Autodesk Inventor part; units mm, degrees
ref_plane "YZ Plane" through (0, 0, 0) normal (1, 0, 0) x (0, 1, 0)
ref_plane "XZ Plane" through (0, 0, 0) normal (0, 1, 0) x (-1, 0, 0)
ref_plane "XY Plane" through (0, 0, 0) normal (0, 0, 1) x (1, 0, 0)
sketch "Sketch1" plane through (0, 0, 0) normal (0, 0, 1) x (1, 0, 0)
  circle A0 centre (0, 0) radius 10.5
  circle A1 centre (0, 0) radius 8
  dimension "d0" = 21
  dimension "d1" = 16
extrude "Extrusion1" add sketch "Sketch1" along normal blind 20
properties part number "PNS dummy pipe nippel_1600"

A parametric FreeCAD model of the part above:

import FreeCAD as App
import Part
import Sketcher

V = App.Vector
Q = App.Units.Quantity

doc = App.newDocument("Part")
params = doc.addObject("Spreadsheet::Sheet", "Params")
for row, (alias, value) in enumerate([
    ("sketch1_diameter", "21 mm"),
    ("sketch1_diameter2", "16 mm"),
    ("pad1_length", "20 mm"),
], start=1):
    params.set(f"A{row}", alias)
    params.set(f"B{row}", "=" + value)
    params.setAlias(f"B{row}", alias)

body = doc.addObject("PartDesign::Body", "Body")

# Sketch on XY plane
sketch1 = doc.addObject("Sketcher::SketchObject", "Sketch")
body.addObject(sketch1)
sketch1.AttachmentSupport = (doc.XY_Plane, [""])
sketch1.MapMode = "FlatFace"
sketch1.addGeometry(Part.Circle(V(0, 0, 0), V(0, 0, 1), 10), False)
sketch1.addGeometry(Part.Circle(V(0, 0, 0), V(0, 0, 1), 8), False)
sketch1.addConstraint(Sketcher.Constraint("Coincident", 0, 3, -1, 1))
sketch1.addConstraint(Sketcher.Constraint("Coincident", 1, 3, -1, 1))
sketch1.addConstraint(Sketcher.Constraint("Diameter", 0, Q("21 mm")))
sketch1.addConstraint(Sketcher.Constraint("Diameter", 1, Q("16 mm")))
sketch1.setExpression("Constraints[2]", "Params.sketch1_diameter")
sketch1.setExpression("Constraints[3]", "Params.sketch1_diameter2")
pad1 = doc.addObject("PartDesign::Pad", "Pad")
body.addObject(pad1)
pad1.Profile = sketch1
pad1.setExpression("Length", "Params.pad1_length")

doc.recompute()
